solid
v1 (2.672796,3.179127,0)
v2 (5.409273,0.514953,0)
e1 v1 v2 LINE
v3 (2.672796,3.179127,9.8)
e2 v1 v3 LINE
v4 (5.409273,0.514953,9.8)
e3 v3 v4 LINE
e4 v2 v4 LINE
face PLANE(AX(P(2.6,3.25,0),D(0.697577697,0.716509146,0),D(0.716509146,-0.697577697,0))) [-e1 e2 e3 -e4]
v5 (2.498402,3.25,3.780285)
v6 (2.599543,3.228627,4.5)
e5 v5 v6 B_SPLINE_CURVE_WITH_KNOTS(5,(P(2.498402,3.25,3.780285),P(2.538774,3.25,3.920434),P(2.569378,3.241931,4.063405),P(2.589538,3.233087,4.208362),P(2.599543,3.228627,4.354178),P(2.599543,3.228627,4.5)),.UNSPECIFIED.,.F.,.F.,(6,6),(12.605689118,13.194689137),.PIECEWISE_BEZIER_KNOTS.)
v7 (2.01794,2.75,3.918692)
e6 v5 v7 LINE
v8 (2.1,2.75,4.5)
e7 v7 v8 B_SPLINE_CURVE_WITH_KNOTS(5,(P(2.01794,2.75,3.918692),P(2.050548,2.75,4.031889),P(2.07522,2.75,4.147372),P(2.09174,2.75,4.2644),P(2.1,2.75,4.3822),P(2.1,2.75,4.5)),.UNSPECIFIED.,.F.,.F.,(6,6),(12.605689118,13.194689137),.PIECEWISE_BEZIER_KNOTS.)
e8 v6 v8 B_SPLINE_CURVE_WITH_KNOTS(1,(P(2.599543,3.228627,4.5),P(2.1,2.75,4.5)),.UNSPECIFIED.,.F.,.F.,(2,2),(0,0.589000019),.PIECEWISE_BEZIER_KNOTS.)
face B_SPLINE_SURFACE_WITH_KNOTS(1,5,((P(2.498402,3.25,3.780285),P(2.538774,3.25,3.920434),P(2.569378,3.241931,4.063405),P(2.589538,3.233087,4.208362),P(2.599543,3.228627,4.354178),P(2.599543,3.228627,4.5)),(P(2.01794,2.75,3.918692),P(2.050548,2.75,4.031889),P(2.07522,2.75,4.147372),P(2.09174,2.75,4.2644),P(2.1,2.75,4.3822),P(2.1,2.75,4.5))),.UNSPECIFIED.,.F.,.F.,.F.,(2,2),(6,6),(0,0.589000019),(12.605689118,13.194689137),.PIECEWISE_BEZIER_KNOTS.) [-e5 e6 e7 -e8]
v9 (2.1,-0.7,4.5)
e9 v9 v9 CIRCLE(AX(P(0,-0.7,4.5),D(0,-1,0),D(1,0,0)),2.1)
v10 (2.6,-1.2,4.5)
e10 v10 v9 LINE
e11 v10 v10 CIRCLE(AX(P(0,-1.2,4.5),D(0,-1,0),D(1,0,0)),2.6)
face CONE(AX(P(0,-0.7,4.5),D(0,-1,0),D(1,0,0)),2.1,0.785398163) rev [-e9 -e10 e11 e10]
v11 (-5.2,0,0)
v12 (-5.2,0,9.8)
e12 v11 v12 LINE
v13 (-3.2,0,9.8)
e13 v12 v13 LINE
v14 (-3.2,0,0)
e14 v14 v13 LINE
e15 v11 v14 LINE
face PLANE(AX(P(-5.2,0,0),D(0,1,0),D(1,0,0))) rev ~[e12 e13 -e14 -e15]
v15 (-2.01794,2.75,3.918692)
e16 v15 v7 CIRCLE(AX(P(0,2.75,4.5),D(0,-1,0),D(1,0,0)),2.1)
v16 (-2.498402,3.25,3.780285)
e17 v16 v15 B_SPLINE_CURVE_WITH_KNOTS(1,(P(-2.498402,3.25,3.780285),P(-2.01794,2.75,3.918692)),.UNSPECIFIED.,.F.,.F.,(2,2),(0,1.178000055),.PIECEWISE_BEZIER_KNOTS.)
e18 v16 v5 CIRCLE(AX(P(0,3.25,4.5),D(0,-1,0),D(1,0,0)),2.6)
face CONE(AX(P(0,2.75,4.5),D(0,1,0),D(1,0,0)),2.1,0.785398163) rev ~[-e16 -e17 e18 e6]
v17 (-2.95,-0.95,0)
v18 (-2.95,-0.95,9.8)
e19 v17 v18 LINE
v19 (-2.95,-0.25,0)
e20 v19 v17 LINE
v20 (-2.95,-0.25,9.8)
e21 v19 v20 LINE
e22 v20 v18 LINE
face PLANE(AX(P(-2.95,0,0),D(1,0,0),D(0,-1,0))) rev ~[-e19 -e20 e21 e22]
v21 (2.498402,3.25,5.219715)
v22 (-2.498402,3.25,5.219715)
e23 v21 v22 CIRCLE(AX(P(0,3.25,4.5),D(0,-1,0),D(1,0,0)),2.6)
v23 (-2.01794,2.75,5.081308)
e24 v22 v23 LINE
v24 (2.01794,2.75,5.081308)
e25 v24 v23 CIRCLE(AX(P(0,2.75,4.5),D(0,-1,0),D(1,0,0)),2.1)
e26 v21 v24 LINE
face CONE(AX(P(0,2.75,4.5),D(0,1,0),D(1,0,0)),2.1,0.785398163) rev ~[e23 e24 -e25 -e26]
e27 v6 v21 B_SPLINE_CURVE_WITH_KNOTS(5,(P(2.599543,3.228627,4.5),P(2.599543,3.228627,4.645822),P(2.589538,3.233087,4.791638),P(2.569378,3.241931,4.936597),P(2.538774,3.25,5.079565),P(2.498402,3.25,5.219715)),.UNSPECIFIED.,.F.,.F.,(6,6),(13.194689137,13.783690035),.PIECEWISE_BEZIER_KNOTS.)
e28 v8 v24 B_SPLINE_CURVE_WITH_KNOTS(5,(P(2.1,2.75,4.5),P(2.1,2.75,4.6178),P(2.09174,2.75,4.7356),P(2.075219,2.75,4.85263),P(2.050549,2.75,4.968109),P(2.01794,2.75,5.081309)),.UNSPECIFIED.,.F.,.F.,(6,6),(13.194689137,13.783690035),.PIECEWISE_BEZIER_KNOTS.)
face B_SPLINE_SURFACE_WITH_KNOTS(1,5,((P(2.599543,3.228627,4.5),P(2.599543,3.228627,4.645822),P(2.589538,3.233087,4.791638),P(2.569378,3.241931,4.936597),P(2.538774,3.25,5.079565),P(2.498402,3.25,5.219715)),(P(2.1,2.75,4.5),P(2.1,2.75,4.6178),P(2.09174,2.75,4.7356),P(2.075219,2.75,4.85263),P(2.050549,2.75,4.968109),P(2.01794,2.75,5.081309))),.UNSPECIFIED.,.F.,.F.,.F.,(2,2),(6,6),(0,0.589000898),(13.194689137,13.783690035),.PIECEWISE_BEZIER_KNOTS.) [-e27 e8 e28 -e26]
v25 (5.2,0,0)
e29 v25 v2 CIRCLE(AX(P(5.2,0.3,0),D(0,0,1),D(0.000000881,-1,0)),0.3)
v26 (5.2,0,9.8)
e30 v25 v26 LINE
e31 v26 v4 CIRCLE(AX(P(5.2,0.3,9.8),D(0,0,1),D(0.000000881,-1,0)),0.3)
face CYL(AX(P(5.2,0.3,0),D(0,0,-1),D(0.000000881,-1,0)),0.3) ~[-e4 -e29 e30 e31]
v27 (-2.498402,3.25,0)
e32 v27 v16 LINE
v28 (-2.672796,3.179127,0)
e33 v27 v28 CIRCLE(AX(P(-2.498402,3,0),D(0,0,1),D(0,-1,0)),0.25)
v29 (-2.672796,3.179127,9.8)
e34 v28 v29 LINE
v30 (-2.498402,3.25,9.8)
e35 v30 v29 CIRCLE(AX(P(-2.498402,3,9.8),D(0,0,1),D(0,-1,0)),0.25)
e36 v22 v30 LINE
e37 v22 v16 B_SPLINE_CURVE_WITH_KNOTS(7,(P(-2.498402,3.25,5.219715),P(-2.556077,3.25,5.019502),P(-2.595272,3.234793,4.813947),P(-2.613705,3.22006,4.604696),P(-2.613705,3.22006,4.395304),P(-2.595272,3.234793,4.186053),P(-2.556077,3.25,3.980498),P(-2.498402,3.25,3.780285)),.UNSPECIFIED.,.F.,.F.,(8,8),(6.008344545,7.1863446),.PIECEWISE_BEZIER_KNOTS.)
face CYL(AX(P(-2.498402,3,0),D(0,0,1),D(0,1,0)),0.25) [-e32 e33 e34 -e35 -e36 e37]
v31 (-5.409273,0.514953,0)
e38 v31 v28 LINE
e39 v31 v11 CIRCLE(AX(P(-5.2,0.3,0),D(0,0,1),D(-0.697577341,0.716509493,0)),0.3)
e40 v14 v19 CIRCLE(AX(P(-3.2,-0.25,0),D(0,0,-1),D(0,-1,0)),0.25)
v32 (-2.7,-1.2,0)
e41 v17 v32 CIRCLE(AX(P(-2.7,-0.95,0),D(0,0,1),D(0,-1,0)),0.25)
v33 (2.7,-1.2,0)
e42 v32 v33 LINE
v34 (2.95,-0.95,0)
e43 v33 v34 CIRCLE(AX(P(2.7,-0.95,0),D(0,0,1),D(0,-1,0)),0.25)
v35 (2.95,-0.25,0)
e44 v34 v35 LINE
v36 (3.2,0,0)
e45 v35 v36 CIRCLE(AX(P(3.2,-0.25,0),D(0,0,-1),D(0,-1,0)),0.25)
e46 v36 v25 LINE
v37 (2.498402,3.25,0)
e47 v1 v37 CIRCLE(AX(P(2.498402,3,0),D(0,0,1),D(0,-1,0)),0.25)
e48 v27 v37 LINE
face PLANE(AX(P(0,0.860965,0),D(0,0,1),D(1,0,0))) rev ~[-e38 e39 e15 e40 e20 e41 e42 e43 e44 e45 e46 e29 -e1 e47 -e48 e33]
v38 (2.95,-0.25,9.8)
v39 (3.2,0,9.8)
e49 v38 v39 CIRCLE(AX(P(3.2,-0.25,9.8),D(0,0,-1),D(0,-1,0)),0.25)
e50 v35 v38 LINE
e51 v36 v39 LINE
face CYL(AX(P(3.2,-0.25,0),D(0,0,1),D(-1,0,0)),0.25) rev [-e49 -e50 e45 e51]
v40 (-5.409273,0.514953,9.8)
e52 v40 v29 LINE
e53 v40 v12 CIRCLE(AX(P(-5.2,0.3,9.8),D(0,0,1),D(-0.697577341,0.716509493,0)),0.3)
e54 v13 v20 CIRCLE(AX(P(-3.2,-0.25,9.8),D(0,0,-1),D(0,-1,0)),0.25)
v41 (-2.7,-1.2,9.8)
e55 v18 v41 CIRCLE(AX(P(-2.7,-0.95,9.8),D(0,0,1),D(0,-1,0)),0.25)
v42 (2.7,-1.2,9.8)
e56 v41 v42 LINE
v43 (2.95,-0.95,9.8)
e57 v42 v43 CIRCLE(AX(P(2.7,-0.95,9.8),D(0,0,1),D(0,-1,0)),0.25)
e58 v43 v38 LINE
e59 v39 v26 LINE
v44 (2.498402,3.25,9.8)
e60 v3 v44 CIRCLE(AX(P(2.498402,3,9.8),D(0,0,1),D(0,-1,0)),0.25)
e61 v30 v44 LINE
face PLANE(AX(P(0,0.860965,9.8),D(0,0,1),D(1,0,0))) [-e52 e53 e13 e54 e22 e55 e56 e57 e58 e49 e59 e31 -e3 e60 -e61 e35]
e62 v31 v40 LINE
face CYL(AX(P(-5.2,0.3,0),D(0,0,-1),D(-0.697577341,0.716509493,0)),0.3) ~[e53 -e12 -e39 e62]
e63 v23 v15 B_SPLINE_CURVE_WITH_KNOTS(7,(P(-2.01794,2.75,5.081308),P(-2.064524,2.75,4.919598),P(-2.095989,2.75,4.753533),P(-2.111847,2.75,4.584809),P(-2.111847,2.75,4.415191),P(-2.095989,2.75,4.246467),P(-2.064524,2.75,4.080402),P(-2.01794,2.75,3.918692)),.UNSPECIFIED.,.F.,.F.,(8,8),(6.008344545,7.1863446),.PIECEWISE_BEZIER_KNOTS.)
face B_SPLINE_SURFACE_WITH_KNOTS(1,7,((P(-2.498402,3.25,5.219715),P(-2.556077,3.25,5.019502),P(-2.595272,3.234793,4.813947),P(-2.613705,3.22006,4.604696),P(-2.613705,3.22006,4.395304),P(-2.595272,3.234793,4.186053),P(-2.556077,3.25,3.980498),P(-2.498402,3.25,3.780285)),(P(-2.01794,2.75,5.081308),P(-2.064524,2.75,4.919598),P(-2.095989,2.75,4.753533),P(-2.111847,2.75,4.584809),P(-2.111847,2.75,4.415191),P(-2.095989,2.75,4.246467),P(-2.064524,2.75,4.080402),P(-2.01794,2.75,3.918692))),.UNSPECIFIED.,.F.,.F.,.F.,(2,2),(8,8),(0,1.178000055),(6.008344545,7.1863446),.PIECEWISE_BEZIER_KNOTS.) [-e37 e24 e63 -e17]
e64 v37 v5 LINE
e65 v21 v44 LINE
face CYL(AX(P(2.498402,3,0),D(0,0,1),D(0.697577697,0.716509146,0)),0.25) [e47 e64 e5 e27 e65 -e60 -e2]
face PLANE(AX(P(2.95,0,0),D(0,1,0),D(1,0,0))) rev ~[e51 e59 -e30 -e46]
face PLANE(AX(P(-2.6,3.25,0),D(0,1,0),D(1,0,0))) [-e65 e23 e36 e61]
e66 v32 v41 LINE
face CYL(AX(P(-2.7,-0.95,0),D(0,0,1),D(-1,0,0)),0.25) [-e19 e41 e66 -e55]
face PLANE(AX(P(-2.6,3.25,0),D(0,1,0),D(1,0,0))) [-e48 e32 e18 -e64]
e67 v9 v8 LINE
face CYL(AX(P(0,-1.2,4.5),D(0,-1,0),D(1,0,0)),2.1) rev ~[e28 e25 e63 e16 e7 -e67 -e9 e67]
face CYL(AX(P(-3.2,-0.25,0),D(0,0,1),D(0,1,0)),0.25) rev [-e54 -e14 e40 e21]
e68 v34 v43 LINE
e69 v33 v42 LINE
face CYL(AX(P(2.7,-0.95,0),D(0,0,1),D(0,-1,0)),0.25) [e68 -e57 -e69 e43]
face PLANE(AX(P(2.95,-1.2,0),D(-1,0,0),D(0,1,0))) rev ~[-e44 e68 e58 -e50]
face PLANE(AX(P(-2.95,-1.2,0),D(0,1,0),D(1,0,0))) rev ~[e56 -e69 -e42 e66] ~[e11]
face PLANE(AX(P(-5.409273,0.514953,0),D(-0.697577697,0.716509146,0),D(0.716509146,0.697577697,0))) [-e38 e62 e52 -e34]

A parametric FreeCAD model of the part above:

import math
import FreeCAD as App
import Part
import Sketcher
Q = App.Units.Quantity


def edges_at(feature, points):
    """Names of the edges that pass closest to the given points."""
    edges = feature.Shape.Edges
    near = lambda p: min(range(len(edges)), key=lambda i: edges[i].distToShape(Part.Vertex(*p))[0])
    return sorted({f"Edge{near(p) + 1}" for p in points})

doc = App.newDocument("Part")
body = doc.addObject("PartDesign::Body", "Body")

# Sketch on XY plane
sketch1 = body.newObject("Sketcher::SketchObject", "Sketch")
sketch1.AttachmentSupport = (doc.getObject("XY_Plane"), [""])
sketch1.MapMode = "FlatFace"
sketch1.addGeometry([
    Part.LineSegment(App.Vector(-5.2, 0, 0), App.Vector(-2.95, 0, 0)),  # 0
    Part.LineSegment(App.Vector(-2.95, 0, 0), App.Vector(-2.95, -1.2, 0)),  # 1
    Part.LineSegment(App.Vector(-2.95, -1.2, 0), App.Vector(2.95, -1.2, 0)),  # 2
    Part.LineSegment(App.Vector(2.95, -1.2, 0), App.Vector(2.95, 0, 0)),  # 3
    Part.LineSegment(App.Vector(2.95, 0, 0), App.Vector(5.2, 0, 0)),  # 4
    Part.ArcOfCircle(Part.Circle(App.Vector(5.2, 0.3, 0), App.Vector(0, 0, 1), 0.3), math.radians(-90), math.radians(46)),  # 5
    Part.LineSegment(App.Vector(5.41, 0.51, 0), App.Vector(2.6, 3.25, 0)),  # 6
    Part.LineSegment(App.Vector(2.6, 3.25, 0), App.Vector(-2.6, 3.25, 0)),  # 7
    Part.LineSegment(App.Vector(-2.6, 3.25, 0), App.Vector(-5.41, 0.51, 0)),  # 8
    Part.ArcOfCircle(Part.Circle(App.Vector(-5.2, 0.3, 0), App.Vector(0, 0, 1), 0.3), math.radians(134), math.radians(270)),  # 9
], False)
sketch1.addConstraint([
    Sketcher.Constraint("Coincident", 0, 2, 1, 1),
    Sketcher.Constraint("Coincident", 1, 2, 2, 1),
    Sketcher.Constraint("Coincident", 2, 2, 3, 1),
    Sketcher.Constraint("Coincident", 3, 2, 4, 1),
    Sketcher.Constraint("Tangent", 4, 2, 5, 1),
    Sketcher.Constraint("Tangent", 5, 2, 6, 1),
    Sketcher.Constraint("Coincident", 6, 2, 7, 1),
    Sketcher.Constraint("Coincident", 7, 2, 8, 1),
    Sketcher.Constraint("Tangent", 8, 2, 9, 1),
    Sketcher.Constraint("Tangent", 9, 2, 0, 1),
    Sketcher.Constraint("Horizontal", 0),
    Sketcher.Constraint("Vertical", 1),
    Sketcher.Constraint("Horizontal", 2),
    Sketcher.Constraint("Vertical", 3),
    Sketcher.Constraint("Horizontal", 4),
    Sketcher.Constraint("Horizontal", 7),
    Sketcher.Constraint("Equal", 5, 9),
    Sketcher.Constraint("Symmetric", 0, 2, 3, 2, -1, 1),
    Sketcher.Constraint("Symmetric", 5, 3, 9, 3, -2),
    Sketcher.Constraint("Horizontal", 5, 2, 8, 2),
    Sketcher.Constraint("Radius", 5, Q("0.3 mm")),
    Sketcher.Constraint("DistanceX", 2, 1, 2, 2, Q("5.9 mm")),
    Sketcher.Constraint("DistanceX", 7, 2, 7, 1, Q("5.2 mm")),
    Sketcher.Constraint("DistanceY", 1, 2, 1, 1, Q("1.2 mm")),
    Sketcher.Constraint("DistanceX", 0, 1, 0, 2, Q("2.25 mm")),
    Sketcher.Constraint("DistanceY", -1, 1, 6, 2, Q("3.25 mm")),
])
pad1 = body.newObject("PartDesign::Pad", "Pad")
pad1.Profile = sketch1
pad1.Length = 9.8
doc.recompute()

fillet = body.newObject("PartDesign::Fillet", "Fillet")
fillet.Base = (pad1, edges_at(pad1, [
    (2.95, 0, 4.9),
    (2.95, -1.2, 4.9),
    (-2.95, -1.2, 4.9),
    (-2.95, 0, 4.9),
    (-2.6, 3.25, 4.9),
    (2.6, 3.25, 4.9),
]))
fillet.Radius = 0.25

# Sketch on XZ plane
sketch2 = body.newObject("Sketcher::SketchObject", "Sketch001")
sketch2.AttachmentSupport = (doc.getObject("XZ_Plane"), [""])
sketch2.MapMode = "FlatFace"
sketch2.AttachmentOffset = App.Placement(App.Vector(0, 0, 1.2), App.Rotation())
sketch2.addGeometry(Part.Circle(App.Vector(0, 4.5, 0), App.Vector(0, 0, 1), 2.1), False)
sketch2.addConstraint([
    Sketcher.Constraint("PointOnObject", 0, 3, -2),
    Sketcher.Constraint("Diameter", 0, Q("4.2 mm")),
    Sketcher.Constraint("DistanceY", -1, 1, 0, 3, Q("4.5 mm")),
])
pocket1 = body.newObject("PartDesign::Pocket", "Pocket")
pocket1.Profile = sketch2
pocket1.Type = "ThroughAll"
doc.recompute()

chamfer = body.newObject("PartDesign::Chamfer", "Chamfer")
chamfer.Base = (pocket1, edges_at(pocket1, [(-2.1, -1.2, 4.5), (2.1, 1.025, 4.5), (-2.1, 3.25, 4.5)]))
chamfer.Size = 0.5

doc.recompute()
